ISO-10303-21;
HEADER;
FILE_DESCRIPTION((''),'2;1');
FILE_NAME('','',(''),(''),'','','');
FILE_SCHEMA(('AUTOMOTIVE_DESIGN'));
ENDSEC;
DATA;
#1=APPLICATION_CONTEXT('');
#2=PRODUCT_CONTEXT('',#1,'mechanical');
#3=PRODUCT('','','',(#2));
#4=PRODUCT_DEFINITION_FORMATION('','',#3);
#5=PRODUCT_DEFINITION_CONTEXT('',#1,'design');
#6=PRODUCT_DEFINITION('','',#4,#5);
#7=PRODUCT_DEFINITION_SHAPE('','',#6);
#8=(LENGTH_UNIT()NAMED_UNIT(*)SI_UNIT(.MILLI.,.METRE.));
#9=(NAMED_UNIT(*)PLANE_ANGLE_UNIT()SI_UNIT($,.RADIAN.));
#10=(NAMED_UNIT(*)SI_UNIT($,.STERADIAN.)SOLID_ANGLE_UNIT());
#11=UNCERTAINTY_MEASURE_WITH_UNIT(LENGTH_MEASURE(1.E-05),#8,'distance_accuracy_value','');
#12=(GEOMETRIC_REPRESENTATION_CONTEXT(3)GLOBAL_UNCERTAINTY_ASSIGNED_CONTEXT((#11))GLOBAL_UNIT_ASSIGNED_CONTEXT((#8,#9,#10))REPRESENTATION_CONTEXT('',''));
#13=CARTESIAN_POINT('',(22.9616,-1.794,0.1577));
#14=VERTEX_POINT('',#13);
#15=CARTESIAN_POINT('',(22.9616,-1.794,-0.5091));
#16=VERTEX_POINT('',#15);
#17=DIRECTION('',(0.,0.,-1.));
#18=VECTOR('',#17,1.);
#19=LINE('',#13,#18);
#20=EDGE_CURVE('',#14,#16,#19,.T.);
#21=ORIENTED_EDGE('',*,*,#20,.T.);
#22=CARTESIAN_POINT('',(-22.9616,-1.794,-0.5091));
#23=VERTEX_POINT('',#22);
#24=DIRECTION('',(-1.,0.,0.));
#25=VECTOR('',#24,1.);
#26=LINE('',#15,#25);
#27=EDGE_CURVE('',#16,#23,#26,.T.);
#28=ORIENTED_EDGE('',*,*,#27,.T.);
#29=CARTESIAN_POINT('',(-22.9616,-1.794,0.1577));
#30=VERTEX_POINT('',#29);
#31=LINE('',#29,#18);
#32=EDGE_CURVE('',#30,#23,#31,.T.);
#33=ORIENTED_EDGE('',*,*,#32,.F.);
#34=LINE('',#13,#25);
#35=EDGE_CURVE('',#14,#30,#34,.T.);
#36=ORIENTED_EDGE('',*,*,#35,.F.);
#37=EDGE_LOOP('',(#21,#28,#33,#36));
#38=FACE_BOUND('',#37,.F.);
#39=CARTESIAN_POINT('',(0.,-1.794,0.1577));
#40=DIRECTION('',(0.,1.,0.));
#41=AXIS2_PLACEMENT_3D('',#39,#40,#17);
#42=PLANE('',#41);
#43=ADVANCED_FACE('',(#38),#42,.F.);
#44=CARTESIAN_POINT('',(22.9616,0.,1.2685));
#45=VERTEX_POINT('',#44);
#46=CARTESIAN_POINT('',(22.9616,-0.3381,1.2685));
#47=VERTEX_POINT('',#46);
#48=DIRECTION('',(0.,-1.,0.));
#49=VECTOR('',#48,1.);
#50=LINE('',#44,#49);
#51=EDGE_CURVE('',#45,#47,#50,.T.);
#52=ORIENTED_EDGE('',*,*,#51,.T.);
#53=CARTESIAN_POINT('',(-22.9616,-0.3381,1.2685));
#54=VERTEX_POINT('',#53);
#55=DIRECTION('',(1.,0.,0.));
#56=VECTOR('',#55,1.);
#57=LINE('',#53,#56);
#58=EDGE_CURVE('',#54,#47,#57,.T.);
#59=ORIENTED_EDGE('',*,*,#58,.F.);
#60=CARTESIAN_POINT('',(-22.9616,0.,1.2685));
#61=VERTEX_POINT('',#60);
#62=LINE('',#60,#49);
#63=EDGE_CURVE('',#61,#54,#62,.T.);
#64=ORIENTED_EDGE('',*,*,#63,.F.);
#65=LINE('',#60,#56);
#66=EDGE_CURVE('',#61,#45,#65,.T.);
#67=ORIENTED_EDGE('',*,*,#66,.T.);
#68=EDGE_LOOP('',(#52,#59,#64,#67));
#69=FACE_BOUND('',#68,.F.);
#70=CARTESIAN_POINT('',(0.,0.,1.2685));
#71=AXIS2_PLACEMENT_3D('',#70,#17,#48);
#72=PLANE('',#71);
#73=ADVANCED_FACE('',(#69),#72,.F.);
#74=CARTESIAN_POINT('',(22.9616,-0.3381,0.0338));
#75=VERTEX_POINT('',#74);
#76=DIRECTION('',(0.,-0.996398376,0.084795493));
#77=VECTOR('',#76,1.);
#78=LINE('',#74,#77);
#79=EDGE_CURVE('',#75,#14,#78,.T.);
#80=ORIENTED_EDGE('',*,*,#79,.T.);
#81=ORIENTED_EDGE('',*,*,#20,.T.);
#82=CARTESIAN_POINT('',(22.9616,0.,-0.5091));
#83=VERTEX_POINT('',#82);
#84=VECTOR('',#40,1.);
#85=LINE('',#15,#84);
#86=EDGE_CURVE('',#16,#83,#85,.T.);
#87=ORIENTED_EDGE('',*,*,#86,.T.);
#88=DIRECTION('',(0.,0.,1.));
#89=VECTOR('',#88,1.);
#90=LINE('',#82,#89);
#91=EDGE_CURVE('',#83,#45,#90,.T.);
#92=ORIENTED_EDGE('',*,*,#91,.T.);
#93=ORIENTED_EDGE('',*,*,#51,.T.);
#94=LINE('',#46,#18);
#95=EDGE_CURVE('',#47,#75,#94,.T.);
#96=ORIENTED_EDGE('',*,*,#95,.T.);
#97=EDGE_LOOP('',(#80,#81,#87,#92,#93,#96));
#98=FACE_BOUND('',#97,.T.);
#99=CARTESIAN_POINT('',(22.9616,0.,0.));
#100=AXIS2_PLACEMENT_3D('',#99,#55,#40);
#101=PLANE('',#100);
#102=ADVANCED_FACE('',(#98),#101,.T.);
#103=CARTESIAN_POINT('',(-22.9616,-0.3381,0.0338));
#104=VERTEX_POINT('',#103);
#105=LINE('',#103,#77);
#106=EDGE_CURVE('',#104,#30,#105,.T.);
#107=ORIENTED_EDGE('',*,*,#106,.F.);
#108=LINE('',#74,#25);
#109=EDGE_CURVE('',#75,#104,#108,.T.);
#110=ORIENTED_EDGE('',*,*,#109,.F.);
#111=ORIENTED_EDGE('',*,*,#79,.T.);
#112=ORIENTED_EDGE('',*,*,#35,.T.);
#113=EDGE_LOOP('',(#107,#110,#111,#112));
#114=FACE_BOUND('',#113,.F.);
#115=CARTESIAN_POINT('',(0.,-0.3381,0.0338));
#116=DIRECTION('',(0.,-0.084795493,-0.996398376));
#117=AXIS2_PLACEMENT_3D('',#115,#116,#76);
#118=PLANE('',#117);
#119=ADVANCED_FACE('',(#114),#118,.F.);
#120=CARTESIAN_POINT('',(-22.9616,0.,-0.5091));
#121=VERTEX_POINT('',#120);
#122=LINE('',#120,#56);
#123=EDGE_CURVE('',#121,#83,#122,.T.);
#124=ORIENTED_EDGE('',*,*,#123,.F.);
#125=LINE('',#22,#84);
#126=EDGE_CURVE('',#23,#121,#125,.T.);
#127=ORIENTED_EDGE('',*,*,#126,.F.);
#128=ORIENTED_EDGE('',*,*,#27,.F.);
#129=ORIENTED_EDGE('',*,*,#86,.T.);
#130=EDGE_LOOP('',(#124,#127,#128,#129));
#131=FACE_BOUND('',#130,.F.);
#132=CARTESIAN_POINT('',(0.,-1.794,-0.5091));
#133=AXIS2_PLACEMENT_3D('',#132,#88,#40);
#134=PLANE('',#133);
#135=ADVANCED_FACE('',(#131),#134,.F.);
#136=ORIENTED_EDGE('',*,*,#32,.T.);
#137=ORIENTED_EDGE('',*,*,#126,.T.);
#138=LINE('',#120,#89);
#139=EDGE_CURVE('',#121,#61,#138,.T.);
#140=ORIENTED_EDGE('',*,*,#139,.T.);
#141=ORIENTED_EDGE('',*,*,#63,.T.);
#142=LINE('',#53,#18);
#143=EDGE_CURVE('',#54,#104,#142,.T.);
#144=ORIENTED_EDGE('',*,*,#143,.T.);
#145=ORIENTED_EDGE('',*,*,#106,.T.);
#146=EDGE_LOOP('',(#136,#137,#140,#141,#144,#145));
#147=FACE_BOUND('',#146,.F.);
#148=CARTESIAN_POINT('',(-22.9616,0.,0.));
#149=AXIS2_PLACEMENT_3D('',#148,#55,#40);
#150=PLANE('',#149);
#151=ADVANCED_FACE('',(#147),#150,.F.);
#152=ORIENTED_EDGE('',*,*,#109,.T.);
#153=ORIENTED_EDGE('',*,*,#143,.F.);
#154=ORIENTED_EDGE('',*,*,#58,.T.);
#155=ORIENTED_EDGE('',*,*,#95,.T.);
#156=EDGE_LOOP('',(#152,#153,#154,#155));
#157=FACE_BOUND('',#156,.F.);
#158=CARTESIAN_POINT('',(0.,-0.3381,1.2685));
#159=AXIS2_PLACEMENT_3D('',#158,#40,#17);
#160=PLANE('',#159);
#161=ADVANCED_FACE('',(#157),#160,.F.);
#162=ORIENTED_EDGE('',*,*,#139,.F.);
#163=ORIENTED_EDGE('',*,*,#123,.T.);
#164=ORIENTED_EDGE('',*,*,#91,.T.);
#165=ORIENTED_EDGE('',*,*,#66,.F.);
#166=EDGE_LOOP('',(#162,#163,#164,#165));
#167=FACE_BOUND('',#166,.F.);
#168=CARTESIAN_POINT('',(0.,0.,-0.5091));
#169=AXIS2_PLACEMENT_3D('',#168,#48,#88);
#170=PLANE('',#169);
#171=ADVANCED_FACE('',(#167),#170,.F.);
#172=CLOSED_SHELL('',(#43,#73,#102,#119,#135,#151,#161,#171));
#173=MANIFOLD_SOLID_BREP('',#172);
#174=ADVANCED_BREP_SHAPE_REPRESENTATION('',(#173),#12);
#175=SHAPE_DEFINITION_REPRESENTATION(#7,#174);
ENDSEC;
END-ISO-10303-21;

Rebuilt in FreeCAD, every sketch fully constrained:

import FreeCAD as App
import Part
import Sketcher

V = App.Vector
Q = App.Units.Quantity


def add_polygon(sketch, points):
    """Adds a closed chain of lines whose ends are joined by coincident constraints."""
    first, n = sketch.GeometryCount, len(points)
    for a, b in zip(points, points[1:] + points[:1]):
        sketch.addGeometry(Part.LineSegment(App.Vector(*a, 0), App.Vector(*b, 0)), False)
    for i in range(n):
        sketch.addConstraint(Sketcher.Constraint("Coincident", first + i, 2, first + (i + 1) % n, 1))

doc = App.newDocument("Part")
body = doc.addObject("PartDesign::Body", "Body")

# Sketch on YZ plane
sketch1 = doc.addObject("Sketcher::SketchObject", "Sketch")
body.addObject(sketch1)
sketch1.AttachmentSupport = (doc.YZ_Plane, [""])
sketch1.MapMode = "FlatFace"
add_polygon(sketch1, [(-1.79, -0.51), (0, -0.51), (0, 1.27), (-0.34, 1.27), (-0.34, 0.03), (-1.79, 0.16)])  # lines 0-5
sketch1.addConstraint([
    Sketcher.Constraint("Horizontal", 0),
    Sketcher.Constraint("Vertical", 1),
    Sketcher.Constraint("Horizontal", 2),
    Sketcher.Constraint("Vertical", 3),
    Sketcher.Constraint("Vertical", 5),
    Sketcher.Constraint("PointOnObject", 0, 2, -2),
    Sketcher.Constraint("DistanceX", 2, 2, 2, 1, Q("0.0133 in")),
    Sketcher.Constraint("DistanceY", 3, 2, 3, 1, Q("0.0486 in")),
    Sketcher.Constraint("DistanceX", 0, 1, 0, 2, 1.794),
    Sketcher.Constraint("DistanceY", 1, 1, 1, 2, 1.7776),
    Sketcher.Constraint("DistanceY", 5, 2, 5, 1, 0.6668),
    Sketcher.Constraint("DistanceY", -1, 1, 4, 2, Q("0.0062 in")),
])
pad1 = doc.addObject("PartDesign::Pad", "Pad")
body.addObject(pad1)
pad1.Profile = sketch1
pad1.Length = Q("1.808 in")
pad1.Midplane = True

doc.recompute()
